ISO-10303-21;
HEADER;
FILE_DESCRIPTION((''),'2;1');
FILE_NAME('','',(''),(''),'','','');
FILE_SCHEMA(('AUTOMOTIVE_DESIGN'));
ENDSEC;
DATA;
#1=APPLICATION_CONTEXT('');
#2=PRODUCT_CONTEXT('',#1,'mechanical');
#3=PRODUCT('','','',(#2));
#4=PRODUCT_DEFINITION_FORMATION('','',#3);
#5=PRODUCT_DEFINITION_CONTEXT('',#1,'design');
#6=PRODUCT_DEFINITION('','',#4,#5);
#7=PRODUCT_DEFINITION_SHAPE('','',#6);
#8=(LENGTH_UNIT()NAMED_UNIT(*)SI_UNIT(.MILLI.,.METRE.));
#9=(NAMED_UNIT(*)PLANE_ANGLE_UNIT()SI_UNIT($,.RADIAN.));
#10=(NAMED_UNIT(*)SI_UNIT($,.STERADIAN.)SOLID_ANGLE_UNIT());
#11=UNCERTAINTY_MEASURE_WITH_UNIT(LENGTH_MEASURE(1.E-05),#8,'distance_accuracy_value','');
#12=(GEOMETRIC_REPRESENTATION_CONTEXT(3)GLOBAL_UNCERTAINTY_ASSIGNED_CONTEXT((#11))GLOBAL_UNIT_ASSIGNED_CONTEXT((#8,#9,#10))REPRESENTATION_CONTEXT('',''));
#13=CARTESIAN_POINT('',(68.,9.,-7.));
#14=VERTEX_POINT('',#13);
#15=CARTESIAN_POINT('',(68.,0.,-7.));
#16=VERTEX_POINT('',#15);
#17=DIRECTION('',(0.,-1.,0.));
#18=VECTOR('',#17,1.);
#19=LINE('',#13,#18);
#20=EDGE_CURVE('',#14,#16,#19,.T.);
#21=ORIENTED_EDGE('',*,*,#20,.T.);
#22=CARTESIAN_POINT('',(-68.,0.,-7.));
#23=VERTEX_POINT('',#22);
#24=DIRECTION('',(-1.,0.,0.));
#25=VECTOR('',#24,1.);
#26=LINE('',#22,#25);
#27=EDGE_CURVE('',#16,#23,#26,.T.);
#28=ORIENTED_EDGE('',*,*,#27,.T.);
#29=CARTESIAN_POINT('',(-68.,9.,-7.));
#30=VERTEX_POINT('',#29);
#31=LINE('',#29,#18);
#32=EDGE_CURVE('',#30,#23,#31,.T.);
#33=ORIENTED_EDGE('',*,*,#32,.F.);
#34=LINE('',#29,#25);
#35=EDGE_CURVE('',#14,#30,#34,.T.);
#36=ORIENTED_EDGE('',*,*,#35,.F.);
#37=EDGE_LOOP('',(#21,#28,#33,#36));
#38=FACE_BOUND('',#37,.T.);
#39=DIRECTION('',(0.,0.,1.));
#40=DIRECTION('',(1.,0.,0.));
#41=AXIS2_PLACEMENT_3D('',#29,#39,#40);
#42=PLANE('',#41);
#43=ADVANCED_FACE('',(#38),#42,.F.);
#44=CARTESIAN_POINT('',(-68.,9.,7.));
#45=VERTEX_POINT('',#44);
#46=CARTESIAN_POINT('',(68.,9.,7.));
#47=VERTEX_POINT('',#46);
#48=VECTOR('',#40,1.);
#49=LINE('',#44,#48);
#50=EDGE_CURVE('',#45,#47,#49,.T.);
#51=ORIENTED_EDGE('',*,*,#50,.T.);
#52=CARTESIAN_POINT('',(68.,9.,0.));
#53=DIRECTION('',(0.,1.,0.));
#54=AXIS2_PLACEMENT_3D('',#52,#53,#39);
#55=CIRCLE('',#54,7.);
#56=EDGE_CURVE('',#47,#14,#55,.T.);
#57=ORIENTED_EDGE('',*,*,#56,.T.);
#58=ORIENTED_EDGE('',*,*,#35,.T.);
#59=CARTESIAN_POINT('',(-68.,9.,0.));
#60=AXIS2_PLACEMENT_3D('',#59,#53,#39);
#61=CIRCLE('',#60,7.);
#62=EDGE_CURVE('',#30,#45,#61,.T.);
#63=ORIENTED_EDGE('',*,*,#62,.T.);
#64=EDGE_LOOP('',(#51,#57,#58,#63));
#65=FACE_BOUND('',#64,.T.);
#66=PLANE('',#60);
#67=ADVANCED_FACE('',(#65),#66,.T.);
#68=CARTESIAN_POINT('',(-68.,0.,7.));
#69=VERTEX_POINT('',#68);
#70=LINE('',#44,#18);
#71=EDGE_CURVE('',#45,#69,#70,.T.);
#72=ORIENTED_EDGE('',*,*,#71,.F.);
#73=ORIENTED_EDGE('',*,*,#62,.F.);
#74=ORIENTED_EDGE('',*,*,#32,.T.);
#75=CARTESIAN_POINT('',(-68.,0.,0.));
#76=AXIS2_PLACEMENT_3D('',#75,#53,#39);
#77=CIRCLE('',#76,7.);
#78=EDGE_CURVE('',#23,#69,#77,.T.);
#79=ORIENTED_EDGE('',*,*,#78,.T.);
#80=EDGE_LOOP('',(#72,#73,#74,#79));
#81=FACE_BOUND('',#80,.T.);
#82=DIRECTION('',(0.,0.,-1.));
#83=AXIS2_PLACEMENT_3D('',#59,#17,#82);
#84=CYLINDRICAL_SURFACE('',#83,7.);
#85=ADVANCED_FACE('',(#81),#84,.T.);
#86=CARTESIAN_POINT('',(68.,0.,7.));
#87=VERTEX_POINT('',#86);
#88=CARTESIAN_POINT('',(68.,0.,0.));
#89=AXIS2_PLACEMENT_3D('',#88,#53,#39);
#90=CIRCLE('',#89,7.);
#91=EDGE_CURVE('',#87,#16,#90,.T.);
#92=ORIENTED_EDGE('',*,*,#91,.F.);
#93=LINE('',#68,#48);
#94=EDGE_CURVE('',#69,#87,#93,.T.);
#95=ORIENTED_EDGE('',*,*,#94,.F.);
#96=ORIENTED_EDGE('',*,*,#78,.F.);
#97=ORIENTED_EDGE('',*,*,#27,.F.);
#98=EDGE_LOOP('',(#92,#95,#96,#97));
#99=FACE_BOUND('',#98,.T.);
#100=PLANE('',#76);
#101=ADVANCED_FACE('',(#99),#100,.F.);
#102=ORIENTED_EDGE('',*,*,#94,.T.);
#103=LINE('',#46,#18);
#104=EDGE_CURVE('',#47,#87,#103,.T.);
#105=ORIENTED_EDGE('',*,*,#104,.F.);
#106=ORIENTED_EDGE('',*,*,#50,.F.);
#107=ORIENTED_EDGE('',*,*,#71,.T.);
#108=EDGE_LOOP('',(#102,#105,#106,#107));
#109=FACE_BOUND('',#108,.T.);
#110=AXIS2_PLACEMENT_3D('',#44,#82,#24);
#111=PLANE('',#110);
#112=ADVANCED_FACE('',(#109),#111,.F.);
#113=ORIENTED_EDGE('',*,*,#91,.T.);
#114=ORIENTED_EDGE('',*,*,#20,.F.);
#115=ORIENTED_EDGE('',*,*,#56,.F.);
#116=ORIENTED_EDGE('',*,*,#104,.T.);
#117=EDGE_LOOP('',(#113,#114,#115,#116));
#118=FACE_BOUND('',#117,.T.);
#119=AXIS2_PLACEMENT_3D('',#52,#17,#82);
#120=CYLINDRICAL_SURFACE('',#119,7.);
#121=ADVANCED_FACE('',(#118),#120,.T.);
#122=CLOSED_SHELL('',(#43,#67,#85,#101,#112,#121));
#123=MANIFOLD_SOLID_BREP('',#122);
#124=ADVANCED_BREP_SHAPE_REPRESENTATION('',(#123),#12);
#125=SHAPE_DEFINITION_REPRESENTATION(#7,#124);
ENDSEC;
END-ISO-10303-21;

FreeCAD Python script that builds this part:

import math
import FreeCAD as App
import Part
import Sketcher

V = App.Vector

doc = App.newDocument("Part")
params = doc.addObject("Spreadsheet::Sheet", "Params")
for row, (alias, value) in enumerate([
    ("sketch1_radius", "7 mm"),
    ("sketch1_width", "136 mm"),
    ("pad1_length", "9 mm"),
], start=1):
    params.set(f"A{row}", alias)
    params.set(f"B{row}", "=" + value)
    params.setAlias(f"B{row}", alias)

body = doc.addObject("PartDesign::Body", "Body")

# Sketch on XZ plane
sketch1 = doc.addObject("Sketcher::SketchObject", "Sketch")
body.addObject(sketch1)
sketch1.AttachmentSupport = (doc.XZ_Plane, [""])
sketch1.MapMode = "FlatFace"
sketch1.addGeometry(Part.LineSegment(V(68, -7, 0), V(-68, -7, 0)), False)
sketch1.addGeometry(Part.ArcOfCircle(Part.Circle(V(-68, 0, 0), V(0, 0, 1), 7), math.radians(90), math.radians(270)), False)
sketch1.addGeometry(Part.LineSegment(V(-68, 7, 0), V(68, 7, 0)), False)
sketch1.addGeometry(Part.ArcOfCircle(Part.Circle(V(68, 0, 0), V(0, 0, 1), 7), math.radians(-90), math.radians(90)), False)
sketch1.addConstraint(Sketcher.Constraint("Tangent", 0, 2, 1, 2))
sketch1.addConstraint(Sketcher.Constraint("Tangent", 1, 1, 2, 1))
sketch1.addConstraint(Sketcher.Constraint("Tangent", 2, 2, 3, 2))
sketch1.addConstraint(Sketcher.Constraint("Tangent", 3, 1, 0, 1))
sketch1.addConstraint(Sketcher.Constraint("Horizontal", 0))
sketch1.addConstraint(Sketcher.Constraint("Horizontal", 2))
sketch1.addConstraint(Sketcher.Constraint("Symmetric", 1, 3, 3, 3, -1, 1))
sketch1.addConstraint(Sketcher.Constraint("Radius", 1, 7.0))
sketch1.addConstraint(Sketcher.Constraint("DistanceX", 0, 2, 0, 1, 136.0))
sketch1.setExpression("Constraints[7]", "Params.sketch1_radius")
sketch1.setExpression("Constraints[8]", "Params.sketch1_width")
pad1 = doc.addObject("PartDesign::Pad", "Pad")
body.addObject(pad1)
pad1.Profile = sketch1
pad1.setExpression("Length", "Params.pad1_length")
pad1.Reversed = True

doc.recompute()
